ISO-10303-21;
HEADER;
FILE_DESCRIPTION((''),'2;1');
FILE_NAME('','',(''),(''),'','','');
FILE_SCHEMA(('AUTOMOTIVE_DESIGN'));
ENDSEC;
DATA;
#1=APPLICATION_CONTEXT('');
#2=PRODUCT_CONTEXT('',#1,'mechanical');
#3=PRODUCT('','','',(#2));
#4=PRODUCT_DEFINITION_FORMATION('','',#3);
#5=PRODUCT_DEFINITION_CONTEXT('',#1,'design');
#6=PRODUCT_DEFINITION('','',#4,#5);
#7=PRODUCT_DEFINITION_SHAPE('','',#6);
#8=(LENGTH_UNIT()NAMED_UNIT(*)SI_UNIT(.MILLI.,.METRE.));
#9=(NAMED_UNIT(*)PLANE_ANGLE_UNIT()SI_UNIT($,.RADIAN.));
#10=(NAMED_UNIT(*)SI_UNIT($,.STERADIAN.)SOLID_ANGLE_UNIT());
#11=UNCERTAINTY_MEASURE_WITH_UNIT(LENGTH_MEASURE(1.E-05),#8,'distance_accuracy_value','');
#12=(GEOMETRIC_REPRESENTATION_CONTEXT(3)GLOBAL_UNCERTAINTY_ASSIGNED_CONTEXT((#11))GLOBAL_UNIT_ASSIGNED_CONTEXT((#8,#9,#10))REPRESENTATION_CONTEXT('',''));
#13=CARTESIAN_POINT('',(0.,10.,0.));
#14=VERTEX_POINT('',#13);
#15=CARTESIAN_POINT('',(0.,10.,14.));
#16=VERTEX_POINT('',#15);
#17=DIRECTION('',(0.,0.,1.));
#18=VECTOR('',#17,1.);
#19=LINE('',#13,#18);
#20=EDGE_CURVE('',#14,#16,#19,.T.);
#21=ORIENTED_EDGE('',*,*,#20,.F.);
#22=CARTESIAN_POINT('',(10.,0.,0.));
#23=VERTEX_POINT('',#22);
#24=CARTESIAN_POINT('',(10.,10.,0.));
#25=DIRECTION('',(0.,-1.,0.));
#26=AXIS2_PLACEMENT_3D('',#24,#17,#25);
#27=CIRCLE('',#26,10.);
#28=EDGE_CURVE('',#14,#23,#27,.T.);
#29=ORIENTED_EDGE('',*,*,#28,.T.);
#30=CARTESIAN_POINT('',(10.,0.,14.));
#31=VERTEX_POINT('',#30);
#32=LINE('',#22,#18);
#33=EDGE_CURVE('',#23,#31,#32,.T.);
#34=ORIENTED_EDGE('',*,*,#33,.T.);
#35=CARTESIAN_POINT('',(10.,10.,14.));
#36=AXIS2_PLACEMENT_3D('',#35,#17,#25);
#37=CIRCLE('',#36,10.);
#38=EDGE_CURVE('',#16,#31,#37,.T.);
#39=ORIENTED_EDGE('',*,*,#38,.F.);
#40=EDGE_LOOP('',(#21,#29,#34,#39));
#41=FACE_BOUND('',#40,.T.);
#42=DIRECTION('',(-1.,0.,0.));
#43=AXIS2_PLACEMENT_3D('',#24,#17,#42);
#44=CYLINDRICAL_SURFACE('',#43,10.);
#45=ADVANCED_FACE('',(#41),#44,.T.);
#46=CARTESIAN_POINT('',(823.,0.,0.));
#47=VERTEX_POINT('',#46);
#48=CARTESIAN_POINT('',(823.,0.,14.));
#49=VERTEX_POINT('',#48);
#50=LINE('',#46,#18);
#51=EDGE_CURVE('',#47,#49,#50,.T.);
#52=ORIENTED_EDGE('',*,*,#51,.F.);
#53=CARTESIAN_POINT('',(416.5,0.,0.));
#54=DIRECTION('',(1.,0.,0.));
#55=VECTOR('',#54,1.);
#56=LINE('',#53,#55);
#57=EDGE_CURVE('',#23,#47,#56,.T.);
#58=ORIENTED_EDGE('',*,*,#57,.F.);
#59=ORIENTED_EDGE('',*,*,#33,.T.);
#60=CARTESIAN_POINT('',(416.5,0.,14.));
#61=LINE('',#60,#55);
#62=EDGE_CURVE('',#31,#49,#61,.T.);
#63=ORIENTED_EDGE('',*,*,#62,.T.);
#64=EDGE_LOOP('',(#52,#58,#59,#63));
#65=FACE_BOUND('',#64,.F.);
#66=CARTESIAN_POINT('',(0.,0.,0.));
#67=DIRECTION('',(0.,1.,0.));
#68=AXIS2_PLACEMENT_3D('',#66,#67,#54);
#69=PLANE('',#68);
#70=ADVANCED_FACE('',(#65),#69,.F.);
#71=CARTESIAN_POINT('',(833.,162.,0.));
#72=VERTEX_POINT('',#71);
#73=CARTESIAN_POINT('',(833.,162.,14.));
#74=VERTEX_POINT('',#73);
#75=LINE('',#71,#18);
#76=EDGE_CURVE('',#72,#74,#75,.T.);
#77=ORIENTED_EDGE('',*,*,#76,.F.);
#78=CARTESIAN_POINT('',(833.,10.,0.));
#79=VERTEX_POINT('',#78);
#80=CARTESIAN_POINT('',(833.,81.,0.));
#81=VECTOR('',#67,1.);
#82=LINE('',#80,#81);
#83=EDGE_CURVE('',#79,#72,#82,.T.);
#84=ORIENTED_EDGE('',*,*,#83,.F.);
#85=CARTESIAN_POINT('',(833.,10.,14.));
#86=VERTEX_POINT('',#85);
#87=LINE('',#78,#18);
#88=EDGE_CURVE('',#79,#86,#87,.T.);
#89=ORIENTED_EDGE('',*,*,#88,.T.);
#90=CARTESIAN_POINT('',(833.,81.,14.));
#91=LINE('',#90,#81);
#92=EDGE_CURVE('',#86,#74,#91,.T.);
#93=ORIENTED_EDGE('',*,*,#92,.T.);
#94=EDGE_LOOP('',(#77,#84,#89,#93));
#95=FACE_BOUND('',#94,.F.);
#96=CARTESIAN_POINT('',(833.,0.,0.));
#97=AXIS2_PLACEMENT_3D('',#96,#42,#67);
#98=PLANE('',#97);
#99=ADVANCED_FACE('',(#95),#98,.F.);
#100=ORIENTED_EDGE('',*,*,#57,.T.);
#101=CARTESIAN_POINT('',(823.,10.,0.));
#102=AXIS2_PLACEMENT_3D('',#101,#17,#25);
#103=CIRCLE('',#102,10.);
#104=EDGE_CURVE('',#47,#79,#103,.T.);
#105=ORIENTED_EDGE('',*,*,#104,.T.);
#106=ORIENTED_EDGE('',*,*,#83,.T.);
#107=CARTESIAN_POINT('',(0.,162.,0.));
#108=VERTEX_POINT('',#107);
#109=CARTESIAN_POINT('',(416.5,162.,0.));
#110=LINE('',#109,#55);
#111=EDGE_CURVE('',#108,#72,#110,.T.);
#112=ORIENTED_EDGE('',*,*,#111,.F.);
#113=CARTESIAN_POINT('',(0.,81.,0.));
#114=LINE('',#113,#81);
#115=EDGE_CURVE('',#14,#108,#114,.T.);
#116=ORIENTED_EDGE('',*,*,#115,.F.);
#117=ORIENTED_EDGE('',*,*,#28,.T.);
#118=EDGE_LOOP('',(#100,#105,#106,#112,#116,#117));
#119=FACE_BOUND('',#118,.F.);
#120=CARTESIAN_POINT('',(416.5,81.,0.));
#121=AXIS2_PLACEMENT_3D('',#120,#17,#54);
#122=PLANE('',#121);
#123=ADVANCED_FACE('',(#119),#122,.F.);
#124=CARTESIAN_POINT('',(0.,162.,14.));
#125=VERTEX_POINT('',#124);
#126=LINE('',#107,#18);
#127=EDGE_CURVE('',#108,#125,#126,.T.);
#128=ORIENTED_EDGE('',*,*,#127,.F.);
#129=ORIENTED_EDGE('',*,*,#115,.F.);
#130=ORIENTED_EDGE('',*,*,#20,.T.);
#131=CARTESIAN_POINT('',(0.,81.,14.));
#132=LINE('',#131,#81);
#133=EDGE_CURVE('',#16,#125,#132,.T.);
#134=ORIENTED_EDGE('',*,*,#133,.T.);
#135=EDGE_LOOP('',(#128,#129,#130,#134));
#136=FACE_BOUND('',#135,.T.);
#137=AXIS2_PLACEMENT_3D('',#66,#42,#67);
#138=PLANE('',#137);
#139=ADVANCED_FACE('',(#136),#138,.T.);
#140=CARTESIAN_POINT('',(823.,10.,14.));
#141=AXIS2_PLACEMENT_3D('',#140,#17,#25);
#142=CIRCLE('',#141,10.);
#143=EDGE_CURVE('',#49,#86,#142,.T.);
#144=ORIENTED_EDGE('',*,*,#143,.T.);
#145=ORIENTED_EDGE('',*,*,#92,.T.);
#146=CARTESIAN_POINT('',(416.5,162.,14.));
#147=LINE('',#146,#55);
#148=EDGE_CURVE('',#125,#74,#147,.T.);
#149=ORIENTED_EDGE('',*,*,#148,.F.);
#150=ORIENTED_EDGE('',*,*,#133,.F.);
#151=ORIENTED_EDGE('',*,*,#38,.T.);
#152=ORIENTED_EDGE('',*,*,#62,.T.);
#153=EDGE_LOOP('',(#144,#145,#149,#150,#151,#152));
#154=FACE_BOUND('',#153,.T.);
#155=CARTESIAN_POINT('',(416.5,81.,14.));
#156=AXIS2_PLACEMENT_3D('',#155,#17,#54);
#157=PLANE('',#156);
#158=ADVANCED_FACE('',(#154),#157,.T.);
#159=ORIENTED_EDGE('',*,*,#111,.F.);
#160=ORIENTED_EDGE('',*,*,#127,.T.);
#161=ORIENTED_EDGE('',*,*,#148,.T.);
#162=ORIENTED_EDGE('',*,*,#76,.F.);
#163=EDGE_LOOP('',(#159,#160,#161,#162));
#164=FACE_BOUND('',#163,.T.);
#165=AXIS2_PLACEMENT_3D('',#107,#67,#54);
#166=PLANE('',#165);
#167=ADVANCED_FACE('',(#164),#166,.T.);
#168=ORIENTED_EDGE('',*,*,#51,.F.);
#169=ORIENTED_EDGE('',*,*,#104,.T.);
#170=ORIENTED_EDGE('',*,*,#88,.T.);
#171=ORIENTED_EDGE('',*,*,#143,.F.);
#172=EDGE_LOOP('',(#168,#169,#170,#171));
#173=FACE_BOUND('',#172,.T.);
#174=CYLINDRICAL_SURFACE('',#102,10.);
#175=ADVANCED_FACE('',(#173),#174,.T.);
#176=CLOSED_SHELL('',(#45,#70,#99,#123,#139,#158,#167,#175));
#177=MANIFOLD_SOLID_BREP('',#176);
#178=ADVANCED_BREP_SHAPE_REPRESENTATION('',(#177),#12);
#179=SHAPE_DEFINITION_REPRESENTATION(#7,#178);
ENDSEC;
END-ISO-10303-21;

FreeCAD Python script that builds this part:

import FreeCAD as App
import Part
import Sketcher
Q = App.Units.Quantity


def edges_at(feature, points):
    """Names of the edges that pass closest to the given points."""
    edges = feature.Shape.Edges
    near = lambda p: min(range(len(edges)), key=lambda i: edges[i].distToShape(Part.Vertex(*p))[0])
    return sorted({f"Edge{near(p) + 1}" for p in points})

doc = App.newDocument("Part")
body = doc.addObject("PartDesign::Body", "Body")

sketch1 = body.newObject("Sketcher::SketchObject", "Sketch")
sketch1.AttachmentSupport = (doc.getObject("XY_Plane"), [""])
sketch1.MapMode = "FlatFace"
sketch1.addGeometry(Part.LineSegment(App.Vector(0, 162, 0), App.Vector(0, 0, 0)), False)
sketch1.addGeometry(Part.LineSegment(App.Vector(0, 0, 0), App.Vector(833, 0, 0)), False)
sketch1.addGeometry(Part.LineSegment(App.Vector(833, 0, 0), App.Vector(833, 162, 0)), False)
sketch1.addGeometry(Part.LineSegment(App.Vector(833, 162, 0), App.Vector(0, 162, 0)), False)
sketch1.addConstraint(Sketcher.Constraint("Coincident", 0, 2, 1, 1))
sketch1.addConstraint(Sketcher.Constraint("Coincident", 1, 2, 2, 1))
sketch1.addConstraint(Sketcher.Constraint("Coincident", 2, 2, 3, 1))
sketch1.addConstraint(Sketcher.Constraint("Coincident", 3, 2, 0, 1))
sketch1.addConstraint(Sketcher.Constraint("Vertical", 0))
sketch1.addConstraint(Sketcher.Constraint("Horizontal", 1))
sketch1.addConstraint(Sketcher.Constraint("Vertical", 2))
sketch1.addConstraint(Sketcher.Constraint("Horizontal", 3))
sketch1.addConstraint(Sketcher.Constraint("Coincident", 0, 2, -1, 1))
sketch1.addConstraint(Sketcher.Constraint("DistanceX", 1, 1, 1, 2, Q("833 mm")))
sketch1.addConstraint(Sketcher.Constraint("DistanceY", 0, 2, 0, 1, Q("162 mm")))
pad1 = body.newObject("PartDesign::Pad", "Pad")
pad1.Profile = sketch1
pad1.Length = 14
doc.recompute()

fillet = body.newObject("PartDesign::Fillet", "Fillet")
fillet.Base = (pad1, edges_at(pad1, [(0, 0, 7)]))
fillet.Radius = 10
doc.recompute()

fillet2 = body.newObject("PartDesign::Fillet", "Fillet001")
fillet2.Base = (fillet, edges_at(fillet, [(833, 0, 7)]))
fillet2.Radius = 10

doc.recompute()
